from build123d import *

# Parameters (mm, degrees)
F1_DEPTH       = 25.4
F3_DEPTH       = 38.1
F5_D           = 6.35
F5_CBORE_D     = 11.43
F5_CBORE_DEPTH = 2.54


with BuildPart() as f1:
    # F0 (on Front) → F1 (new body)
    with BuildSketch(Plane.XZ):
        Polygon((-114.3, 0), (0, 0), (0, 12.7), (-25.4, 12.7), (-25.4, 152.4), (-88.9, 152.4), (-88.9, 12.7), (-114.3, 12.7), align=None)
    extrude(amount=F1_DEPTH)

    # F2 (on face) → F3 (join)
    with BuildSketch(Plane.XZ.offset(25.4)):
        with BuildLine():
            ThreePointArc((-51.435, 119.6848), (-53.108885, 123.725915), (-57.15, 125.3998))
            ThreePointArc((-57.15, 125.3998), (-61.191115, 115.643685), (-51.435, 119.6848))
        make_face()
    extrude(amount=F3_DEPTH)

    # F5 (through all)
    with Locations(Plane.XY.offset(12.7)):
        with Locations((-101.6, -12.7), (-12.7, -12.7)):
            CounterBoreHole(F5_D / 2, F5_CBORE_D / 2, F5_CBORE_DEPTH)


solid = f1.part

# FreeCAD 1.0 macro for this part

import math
import FreeCAD as App
import Part
import Sketcher
from FreeCAD import Vector
Q = App.Units.Quantity


def add_polygon(sketch, points):
    """Adds a closed chain of lines whose ends are joined by coincident constraints."""
    first, n = sketch.GeometryCount, len(points)
    for a, b in zip(points, points[1:] + points[:1]):
        sketch.addGeometry(Part.LineSegment(App.Vector(*a, 0), App.Vector(*b, 0)), False)
    for i in range(n):
        sketch.addConstraint(Sketcher.Constraint("Coincident", first + i, 2, first + (i + 1) % n, 1))

doc = App.newDocument("Part")
body = doc.addObject("PartDesign::Body", "Body")

sketch1 = body.newObject("Sketcher::SketchObject", "Sketch")
sketch1.AttachmentSupport = (doc.getObject("XZ_Plane"), [""])
sketch1.MapMode = "FlatFace"
add_polygon(sketch1, [(-114, 0), (0, 0), (0, 13), (-25, 13), (-25, 152), (-89, 152), (-89, 13), (-114, 13)])
sketch1.addConstraint(Sketcher.Constraint("Horizontal", 0))
sketch1.addConstraint(Sketcher.Constraint("Vertical", 1))
sketch1.addConstraint(Sketcher.Constraint("Horizontal", 2))
sketch1.addConstraint(Sketcher.Constraint("Vertical", 3))
sketch1.addConstraint(Sketcher.Constraint("Horizontal", 4))
sketch1.addConstraint(Sketcher.Constraint("Vertical", 5))
sketch1.addConstraint(Sketcher.Constraint("Horizontal", 6))
sketch1.addConstraint(Sketcher.Constraint("Vertical", 7))
sketch1.addConstraint(Sketcher.Constraint("Coincident", 0, 2, -1, 1))
sketch1.addConstraint(Sketcher.Constraint("Horizontal", 2, 2, 5, 2))
sketch1.addConstraint(Sketcher.Constraint("Equal", 2, 6))
sketch1.addConstraint(Sketcher.Constraint("DistanceX", 2, 2, 2, 1, Q("1 in")))
sketch1.addConstraint(Sketcher.Constraint("DistanceX", 0, 1, 0, 2, Q("4.5 in")))
sketch1.addConstraint(Sketcher.Constraint("DistanceY", 1, 1, 1, 2, Q("0.5 in")))
sketch1.addConstraint(Sketcher.Constraint("DistanceY", 3, 1, 3, 2, Q("5.5 in")))
pad1 = body.newObject("PartDesign::Pad", "Pad")
pad1.Profile = sketch1
pad1.Length = Q("1 in")

sketch2 = body.newObject("Sketcher::SketchObject", "Sketch001")
sketch2.AttachmentSupport = (doc.getObject("XZ_Plane"), [""])
sketch2.MapMode = "FlatFace"
sketch2.AttachmentOffset = App.Placement(Vector(0, 0, 1 * 25.4), App.Rotation())
sketch2.addGeometry(Part.ArcOfCircle(Part.Circle(Vector(-57, 120, 0), Vector(0, 0, 1), 6), math.radians(0), math.radians(90)), False)
sketch2.addGeometry(Part.ArcOfCircle(Part.Circle(Vector(-57, 120, 0), Vector(0, 0, 1), 6), math.radians(90), math.radians(360)), False)
sketch2.addConstraint(Sketcher.Constraint("Tangent", 0, 1, 1, 2))
sketch2.addConstraint(Sketcher.Constraint("Coincident", 1, 1, 0, 2))
sketch2.addConstraint(Sketcher.Constraint("Horizontal", 1, 3, 0, 1))
sketch2.addConstraint(Sketcher.Constraint("Vertical", 0, 3, 1, 1))
sketch2.addConstraint(Sketcher.Constraint("Radius", 0, Q("0.225 in")))
sketch2.addConstraint(Sketcher.Constraint("DistanceX", 0, 3, -1, 1, Q("2.25 in")))
sketch2.addConstraint(Sketcher.Constraint("DistanceY", -1, 1, 0, 3, Q("4.712 in")))
pad2 = body.newObject("PartDesign::Pad", "Pad001")
pad2.Profile = sketch2
pad2.Length = Q("1.5 in")

sketch3 = body.newObject("Sketcher::SketchObject", "Sketch002")
sketch3.AttachmentSupport = (doc.getObject("XY_Plane"), [""])
sketch3.MapMode = "FlatFace"
sketch3.AttachmentOffset = App.Placement(Vector(0, 0, 0.5 * 25.4), App.Rotation())
sketch3.addGeometry(Part.Circle(Vector(-101.6, -12.7, 0), Vector(0, 0, 1), 3.2), False)
sketch3.addGeometry(Part.Circle(Vector(-12.7, -12.7, 0), Vector(0, 0, 1), 3.2), False)
sketch3.addConstraint(Sketcher.Constraint("Equal", 0, 1))
sketch3.addConstraint(Sketcher.Constraint("Horizontal", 0, 3, 1, 3))
sketch3.addConstraint(Sketcher.Constraint("Diameter", 0, Q("0.25 in")))
sketch3.addConstraint(Sketcher.Constraint("DistanceX", 0, 3, -1, 1, Q("4 in")))
sketch3.addConstraint(Sketcher.Constraint("DistanceY", 0, 3, -1, 1, Q("0.5 in")))
sketch3.addConstraint(Sketcher.Constraint("DistanceX", 1, 3, -1, 1, Q("0.5 in")))
doc.recompute()
hole = body.newObject("PartDesign::Hole", "Hole")
hole.Profile = sketch3
hole.ThreadType = "None"
hole.Diameter = Q("0.25 in")
hole.DepthType = "ThroughAll"
hole.HoleCutType = "Counterbore"
hole.HoleCutDiameter = Q("0.45 in")
hole.HoleCutDepth = Q("0.1 in")

doc.recompute()
